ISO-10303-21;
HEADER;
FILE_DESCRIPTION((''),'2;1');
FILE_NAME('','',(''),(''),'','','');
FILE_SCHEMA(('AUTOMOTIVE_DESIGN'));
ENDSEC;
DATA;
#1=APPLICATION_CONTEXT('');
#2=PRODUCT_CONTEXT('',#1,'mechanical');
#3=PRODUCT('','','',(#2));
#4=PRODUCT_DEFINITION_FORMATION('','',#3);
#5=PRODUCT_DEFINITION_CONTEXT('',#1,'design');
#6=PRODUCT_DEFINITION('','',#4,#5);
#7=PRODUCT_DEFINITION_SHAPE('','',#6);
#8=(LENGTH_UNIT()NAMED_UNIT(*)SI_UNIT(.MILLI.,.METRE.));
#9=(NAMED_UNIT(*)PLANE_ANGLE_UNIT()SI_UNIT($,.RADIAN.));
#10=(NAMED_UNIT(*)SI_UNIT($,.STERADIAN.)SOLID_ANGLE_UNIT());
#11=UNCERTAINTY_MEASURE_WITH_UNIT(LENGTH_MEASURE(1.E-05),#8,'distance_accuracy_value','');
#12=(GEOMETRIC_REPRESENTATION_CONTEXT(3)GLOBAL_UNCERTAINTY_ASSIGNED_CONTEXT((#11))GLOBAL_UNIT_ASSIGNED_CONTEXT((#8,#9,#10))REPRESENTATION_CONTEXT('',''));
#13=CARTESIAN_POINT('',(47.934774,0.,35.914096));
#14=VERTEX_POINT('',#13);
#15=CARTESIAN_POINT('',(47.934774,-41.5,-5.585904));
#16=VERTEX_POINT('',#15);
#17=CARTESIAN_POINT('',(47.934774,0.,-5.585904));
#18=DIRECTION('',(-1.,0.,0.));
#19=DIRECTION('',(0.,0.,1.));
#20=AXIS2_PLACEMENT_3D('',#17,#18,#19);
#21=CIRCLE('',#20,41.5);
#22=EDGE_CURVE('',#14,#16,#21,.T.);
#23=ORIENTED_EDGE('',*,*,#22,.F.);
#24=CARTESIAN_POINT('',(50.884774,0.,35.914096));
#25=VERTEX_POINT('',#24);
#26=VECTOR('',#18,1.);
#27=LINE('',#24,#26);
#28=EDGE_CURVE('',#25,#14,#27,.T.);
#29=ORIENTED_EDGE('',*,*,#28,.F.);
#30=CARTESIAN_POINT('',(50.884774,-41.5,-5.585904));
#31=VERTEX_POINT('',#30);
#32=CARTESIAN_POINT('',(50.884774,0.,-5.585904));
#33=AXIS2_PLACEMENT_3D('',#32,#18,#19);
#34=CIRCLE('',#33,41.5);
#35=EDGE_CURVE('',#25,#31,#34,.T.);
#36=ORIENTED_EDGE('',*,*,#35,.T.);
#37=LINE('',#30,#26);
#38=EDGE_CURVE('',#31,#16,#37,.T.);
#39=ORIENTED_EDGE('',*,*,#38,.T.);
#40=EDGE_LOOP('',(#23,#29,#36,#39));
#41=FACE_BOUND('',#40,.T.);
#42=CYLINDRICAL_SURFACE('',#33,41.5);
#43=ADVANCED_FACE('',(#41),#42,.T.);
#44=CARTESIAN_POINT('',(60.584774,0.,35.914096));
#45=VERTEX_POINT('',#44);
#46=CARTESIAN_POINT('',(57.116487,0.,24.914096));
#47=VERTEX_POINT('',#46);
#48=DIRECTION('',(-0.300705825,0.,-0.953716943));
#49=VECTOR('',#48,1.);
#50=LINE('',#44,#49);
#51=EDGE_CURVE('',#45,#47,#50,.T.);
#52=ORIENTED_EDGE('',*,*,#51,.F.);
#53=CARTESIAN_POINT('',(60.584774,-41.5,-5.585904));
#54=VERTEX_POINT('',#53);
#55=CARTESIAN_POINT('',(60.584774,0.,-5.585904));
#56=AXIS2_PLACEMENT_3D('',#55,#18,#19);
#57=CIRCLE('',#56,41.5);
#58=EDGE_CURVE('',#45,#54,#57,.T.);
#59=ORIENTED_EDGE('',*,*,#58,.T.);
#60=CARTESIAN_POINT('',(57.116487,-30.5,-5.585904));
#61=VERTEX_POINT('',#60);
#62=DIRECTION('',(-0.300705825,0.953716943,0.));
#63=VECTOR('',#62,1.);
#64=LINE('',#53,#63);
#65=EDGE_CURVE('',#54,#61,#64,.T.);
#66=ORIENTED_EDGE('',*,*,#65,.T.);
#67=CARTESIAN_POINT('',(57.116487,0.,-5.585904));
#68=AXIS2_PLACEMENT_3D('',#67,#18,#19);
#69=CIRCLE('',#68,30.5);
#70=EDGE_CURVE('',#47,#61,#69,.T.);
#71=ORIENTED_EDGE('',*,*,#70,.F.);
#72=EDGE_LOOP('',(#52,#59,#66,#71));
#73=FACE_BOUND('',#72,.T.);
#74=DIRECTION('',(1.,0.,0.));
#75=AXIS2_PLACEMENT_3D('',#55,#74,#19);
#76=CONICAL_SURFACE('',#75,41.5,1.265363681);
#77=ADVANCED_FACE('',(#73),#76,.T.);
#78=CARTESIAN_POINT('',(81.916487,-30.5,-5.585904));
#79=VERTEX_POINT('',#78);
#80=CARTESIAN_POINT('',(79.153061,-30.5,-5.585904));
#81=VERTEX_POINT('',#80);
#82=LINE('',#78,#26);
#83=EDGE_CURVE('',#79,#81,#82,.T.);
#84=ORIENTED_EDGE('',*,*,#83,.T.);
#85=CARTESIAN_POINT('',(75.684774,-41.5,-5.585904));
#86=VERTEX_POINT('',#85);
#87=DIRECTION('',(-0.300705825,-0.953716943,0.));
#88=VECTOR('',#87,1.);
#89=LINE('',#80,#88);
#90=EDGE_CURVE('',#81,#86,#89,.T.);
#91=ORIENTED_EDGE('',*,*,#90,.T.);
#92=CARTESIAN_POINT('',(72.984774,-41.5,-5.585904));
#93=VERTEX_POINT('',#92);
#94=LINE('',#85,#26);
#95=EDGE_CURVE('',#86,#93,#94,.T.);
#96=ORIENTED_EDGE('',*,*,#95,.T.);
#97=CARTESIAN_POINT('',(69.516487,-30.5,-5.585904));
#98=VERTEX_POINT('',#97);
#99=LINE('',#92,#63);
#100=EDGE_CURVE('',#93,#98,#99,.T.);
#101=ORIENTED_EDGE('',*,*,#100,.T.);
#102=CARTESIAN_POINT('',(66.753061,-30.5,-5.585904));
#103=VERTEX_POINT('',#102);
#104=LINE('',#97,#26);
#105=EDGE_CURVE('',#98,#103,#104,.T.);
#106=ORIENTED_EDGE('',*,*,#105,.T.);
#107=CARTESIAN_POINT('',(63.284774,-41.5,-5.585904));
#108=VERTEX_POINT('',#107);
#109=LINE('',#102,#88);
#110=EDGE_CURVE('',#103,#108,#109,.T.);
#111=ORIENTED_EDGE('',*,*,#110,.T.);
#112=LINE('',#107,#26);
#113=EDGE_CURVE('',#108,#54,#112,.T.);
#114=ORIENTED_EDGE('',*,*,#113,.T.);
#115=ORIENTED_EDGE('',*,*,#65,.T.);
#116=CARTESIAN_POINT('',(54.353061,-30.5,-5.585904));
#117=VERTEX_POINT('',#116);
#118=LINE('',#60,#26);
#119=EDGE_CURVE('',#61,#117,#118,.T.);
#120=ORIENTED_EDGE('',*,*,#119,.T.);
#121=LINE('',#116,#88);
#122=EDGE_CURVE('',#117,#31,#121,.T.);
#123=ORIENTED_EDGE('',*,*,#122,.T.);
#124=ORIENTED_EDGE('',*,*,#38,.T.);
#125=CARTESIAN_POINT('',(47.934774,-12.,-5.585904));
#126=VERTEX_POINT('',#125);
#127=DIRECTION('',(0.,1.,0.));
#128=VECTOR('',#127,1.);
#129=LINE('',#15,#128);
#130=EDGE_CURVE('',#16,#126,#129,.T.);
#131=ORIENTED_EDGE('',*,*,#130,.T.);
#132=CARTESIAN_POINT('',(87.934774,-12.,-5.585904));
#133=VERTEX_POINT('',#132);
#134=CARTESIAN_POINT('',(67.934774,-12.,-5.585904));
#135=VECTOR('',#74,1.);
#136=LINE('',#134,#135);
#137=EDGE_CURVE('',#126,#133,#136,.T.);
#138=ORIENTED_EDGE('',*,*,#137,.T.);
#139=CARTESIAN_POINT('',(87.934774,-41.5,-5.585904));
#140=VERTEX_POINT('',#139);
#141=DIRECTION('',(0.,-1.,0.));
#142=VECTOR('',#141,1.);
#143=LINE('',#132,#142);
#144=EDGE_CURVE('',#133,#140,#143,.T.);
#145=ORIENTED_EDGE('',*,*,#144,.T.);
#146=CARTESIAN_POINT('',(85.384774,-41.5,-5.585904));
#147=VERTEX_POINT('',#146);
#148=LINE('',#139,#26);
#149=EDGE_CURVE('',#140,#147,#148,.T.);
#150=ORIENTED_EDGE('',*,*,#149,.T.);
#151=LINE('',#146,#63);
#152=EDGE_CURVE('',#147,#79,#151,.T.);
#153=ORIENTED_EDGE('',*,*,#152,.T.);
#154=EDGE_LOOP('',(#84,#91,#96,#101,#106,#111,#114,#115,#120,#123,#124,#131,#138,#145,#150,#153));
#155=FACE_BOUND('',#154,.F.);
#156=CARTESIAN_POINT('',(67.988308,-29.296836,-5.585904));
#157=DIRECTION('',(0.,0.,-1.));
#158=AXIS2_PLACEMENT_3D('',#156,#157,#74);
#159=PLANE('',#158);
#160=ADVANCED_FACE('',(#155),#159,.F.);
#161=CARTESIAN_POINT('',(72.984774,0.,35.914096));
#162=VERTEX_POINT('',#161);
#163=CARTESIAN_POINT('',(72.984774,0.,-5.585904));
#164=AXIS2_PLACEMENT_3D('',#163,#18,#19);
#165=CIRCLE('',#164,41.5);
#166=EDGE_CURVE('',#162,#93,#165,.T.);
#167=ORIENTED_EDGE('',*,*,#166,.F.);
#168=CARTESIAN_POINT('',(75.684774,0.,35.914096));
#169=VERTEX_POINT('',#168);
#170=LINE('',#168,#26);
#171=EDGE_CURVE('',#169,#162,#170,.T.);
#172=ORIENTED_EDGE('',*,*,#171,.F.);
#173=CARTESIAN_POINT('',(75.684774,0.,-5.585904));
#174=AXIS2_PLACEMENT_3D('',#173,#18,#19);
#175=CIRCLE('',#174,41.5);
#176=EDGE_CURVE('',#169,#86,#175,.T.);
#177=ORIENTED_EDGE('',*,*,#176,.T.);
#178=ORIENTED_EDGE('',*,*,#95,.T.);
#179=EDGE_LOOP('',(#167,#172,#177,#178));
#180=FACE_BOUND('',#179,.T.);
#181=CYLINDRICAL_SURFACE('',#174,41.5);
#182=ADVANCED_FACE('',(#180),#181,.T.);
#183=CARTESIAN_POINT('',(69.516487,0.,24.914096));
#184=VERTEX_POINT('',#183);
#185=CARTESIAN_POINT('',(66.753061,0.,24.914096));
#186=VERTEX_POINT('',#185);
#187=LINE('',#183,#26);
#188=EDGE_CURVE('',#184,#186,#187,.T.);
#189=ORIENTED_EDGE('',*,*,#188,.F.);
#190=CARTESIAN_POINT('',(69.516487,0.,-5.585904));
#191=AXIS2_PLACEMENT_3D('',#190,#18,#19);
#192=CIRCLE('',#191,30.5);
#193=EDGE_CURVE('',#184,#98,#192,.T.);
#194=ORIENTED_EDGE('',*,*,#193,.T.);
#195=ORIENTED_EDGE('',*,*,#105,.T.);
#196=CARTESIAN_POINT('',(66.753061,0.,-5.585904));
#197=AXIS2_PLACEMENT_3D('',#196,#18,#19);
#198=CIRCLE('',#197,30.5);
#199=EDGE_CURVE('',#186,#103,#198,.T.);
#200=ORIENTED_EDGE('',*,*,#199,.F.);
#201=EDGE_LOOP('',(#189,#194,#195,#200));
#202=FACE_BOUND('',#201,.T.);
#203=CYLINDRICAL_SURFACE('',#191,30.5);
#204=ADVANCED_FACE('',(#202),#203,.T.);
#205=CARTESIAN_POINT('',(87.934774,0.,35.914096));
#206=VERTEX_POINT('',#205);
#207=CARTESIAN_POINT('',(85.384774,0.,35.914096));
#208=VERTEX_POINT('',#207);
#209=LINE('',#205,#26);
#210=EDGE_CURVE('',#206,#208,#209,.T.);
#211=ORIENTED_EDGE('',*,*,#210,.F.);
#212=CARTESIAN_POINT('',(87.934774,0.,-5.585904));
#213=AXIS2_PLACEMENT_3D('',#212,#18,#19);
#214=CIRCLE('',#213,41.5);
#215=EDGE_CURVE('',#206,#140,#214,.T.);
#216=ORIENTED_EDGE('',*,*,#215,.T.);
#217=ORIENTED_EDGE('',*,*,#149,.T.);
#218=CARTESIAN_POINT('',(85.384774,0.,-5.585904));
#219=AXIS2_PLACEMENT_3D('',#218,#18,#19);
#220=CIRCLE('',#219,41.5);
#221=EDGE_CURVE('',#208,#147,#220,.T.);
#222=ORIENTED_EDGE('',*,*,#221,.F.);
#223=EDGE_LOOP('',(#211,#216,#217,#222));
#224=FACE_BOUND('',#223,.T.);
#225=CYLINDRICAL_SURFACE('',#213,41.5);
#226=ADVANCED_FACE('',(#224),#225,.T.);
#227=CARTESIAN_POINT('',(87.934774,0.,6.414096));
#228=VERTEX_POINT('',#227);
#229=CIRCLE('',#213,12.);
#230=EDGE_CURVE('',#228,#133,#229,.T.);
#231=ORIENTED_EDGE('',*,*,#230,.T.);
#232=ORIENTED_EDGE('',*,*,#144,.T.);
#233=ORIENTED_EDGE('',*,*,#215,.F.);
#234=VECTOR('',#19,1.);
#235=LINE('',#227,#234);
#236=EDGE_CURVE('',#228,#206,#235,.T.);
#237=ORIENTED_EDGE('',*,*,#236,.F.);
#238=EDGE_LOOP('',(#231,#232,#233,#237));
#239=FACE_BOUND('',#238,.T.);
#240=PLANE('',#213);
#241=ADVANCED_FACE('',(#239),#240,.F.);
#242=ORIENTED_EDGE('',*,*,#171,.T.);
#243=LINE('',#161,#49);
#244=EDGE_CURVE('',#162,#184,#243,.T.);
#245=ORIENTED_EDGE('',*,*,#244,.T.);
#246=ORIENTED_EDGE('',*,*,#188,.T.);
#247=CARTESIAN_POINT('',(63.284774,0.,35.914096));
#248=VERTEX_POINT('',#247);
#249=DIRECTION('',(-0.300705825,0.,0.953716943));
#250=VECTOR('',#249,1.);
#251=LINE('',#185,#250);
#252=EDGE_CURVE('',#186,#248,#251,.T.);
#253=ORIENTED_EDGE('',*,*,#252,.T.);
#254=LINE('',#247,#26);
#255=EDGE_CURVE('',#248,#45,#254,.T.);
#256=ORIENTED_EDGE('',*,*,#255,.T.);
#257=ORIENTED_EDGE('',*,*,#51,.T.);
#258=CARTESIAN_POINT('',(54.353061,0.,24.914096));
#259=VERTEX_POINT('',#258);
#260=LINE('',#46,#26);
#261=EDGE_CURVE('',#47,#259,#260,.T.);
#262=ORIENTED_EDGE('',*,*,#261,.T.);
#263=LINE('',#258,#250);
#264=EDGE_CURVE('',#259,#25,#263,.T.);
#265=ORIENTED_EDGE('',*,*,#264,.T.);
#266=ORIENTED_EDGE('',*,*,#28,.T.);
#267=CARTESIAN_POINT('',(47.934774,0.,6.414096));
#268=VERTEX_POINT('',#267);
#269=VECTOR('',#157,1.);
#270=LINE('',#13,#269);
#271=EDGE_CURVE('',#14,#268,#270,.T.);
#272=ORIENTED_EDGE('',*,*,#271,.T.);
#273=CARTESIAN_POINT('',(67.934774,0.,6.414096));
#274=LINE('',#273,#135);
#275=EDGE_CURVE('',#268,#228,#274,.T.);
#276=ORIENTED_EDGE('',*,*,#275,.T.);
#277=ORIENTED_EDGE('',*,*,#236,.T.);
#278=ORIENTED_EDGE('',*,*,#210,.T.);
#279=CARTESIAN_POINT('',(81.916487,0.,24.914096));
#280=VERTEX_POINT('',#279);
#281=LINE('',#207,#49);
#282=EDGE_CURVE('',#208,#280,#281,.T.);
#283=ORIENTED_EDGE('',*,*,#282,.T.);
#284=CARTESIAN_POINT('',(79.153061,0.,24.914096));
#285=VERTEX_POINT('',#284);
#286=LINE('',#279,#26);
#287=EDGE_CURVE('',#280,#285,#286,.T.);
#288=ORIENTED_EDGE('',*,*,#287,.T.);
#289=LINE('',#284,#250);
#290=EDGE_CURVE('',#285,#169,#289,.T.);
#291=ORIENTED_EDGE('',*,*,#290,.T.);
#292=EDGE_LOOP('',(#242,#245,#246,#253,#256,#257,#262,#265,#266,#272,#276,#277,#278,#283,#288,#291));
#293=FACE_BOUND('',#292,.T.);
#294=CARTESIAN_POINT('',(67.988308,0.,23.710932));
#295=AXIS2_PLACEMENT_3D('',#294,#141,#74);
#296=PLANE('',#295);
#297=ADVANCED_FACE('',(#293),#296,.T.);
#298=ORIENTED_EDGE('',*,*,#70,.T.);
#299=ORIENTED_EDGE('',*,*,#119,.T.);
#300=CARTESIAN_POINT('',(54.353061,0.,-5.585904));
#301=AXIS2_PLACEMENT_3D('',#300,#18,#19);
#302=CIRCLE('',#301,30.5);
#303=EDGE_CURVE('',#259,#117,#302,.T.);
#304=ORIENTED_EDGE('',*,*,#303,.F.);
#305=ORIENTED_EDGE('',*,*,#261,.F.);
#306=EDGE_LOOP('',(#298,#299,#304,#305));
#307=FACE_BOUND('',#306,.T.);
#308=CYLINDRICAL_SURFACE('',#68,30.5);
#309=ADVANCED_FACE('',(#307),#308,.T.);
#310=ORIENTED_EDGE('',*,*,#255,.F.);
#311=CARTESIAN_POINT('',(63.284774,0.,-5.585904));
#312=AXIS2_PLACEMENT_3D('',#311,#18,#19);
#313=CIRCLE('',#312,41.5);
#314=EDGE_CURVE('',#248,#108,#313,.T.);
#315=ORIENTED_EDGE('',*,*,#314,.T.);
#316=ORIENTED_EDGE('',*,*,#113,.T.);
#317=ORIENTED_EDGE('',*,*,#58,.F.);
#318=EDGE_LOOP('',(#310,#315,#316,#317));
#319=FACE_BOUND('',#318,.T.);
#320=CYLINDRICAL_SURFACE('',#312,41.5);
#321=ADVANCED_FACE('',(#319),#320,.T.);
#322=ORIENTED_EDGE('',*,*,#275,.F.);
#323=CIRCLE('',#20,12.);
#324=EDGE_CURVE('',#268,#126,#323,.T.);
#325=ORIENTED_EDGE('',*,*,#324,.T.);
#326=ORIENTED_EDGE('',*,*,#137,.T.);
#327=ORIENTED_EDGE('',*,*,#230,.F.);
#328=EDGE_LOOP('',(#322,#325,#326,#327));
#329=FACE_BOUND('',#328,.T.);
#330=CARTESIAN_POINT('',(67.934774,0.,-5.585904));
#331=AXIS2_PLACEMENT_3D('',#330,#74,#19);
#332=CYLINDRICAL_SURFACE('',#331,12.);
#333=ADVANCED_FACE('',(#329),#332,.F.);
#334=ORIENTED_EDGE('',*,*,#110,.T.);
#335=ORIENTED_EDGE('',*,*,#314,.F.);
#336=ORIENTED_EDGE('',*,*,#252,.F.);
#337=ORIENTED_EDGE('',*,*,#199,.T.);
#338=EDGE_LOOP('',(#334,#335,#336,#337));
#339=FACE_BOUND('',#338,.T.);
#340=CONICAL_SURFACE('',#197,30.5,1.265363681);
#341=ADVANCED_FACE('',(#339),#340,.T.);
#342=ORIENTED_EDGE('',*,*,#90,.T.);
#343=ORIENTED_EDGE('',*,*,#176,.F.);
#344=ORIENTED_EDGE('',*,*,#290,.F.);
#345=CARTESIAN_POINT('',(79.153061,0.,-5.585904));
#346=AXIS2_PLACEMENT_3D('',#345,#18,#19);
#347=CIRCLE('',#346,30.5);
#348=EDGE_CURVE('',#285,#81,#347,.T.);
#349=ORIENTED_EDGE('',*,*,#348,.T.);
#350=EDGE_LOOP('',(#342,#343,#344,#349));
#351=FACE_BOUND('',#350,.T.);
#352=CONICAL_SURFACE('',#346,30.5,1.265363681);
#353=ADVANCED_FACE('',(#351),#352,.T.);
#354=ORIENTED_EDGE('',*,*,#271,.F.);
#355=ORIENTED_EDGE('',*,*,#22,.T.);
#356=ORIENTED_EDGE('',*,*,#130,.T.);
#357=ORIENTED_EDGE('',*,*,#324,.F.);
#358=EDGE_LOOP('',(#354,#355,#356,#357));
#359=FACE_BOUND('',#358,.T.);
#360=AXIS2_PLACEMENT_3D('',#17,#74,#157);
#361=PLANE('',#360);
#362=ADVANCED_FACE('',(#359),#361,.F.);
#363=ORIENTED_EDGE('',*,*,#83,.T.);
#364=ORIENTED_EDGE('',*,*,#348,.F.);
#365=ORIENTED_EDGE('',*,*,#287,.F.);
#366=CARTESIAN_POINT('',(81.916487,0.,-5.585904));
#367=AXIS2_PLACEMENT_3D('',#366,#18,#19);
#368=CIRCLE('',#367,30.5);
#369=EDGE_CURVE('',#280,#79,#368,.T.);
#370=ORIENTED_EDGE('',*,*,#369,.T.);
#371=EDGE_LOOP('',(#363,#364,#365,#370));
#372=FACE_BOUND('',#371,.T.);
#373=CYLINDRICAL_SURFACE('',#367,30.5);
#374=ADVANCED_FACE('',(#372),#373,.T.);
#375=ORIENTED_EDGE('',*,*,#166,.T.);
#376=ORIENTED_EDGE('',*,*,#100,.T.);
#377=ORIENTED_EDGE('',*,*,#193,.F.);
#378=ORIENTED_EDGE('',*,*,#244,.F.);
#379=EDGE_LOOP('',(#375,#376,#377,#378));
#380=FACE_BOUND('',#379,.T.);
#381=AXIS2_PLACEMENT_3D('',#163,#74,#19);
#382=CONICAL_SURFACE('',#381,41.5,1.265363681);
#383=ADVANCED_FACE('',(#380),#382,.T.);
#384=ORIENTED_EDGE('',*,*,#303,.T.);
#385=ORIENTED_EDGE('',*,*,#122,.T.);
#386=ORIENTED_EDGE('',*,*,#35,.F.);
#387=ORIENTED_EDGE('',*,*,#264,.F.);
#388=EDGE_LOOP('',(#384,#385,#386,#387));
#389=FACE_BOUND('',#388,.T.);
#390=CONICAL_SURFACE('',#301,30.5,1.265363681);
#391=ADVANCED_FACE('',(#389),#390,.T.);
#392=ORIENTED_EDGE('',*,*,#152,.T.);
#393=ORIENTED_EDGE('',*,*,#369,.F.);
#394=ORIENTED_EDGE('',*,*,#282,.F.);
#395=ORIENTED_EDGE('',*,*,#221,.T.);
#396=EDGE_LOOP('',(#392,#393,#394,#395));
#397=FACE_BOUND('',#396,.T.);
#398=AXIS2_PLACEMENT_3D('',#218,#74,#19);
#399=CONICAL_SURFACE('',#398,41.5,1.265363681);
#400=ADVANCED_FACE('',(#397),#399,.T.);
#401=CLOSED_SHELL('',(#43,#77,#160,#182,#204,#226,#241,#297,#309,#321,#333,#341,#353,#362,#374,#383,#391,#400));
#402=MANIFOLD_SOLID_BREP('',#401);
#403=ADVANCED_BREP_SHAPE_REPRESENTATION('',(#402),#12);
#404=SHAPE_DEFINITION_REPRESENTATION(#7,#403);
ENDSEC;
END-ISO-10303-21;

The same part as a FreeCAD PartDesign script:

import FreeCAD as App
import Part
import Sketcher
from FreeCAD import Vector
Q = App.Units.Quantity


def add_polygon(sketch, points):
    """Adds a closed chain of lines whose ends are joined by coincident constraints."""
    first, n = sketch.GeometryCount, len(points)
    for a, b in zip(points, points[1:] + points[:1]):
        sketch.addGeometry(Part.LineSegment(App.Vector(*a, 0), App.Vector(*b, 0)), False)
    for i in range(n):
        sketch.addConstraint(Sketcher.Constraint("Coincident", first + i, 2, first + (i + 1) % n, 1))

doc = App.newDocument("Part")
body = doc.addObject("PartDesign::Body", "Body")

sketch1 = doc.addObject("Sketcher::SketchObject", "Sketch")
body.addObject(sketch1)
sketch1.AttachmentSupport = (doc.XZ_Plane, [""])
sketch1.MapMode = "FlatFace"
add_polygon(sketch1, [(63.3, 35.9), (60.6, 35.9), (57.1, 24.9), (54.4, 24.9), (50.9, 35.9), (47.9, 35.9), (47.9, 6.4), (87.9, 6.4), (87.9, 35.9), (85.4, 35.9), (81.9, 24.9), (79.2, 24.9), (75.7, 35.9), (73, 35.9), (69.5, 24.9), (66.8, 24.9)])
sketch1.addGeometry(Part.LineSegment(Vector(87.9, -5.6, 0), Vector(47.9, -5.6, 0)), True)
sketch1.addConstraint([
    Sketcher.Constraint("Horizontal", 0),
    Sketcher.Constraint("Horizontal", 2),
    Sketcher.Constraint("Horizontal", 4),
    Sketcher.Constraint("Vertical", 5),
    Sketcher.Constraint("Horizontal", 6),
    Sketcher.Constraint("Vertical", 7),
    Sketcher.Constraint("Horizontal", 8),
    Sketcher.Constraint("Horizontal", 10),
    Sketcher.Constraint("Horizontal", 12),
    Sketcher.Constraint("Horizontal", 14),
    Sketcher.Constraint("Horizontal", 16),
    Sketcher.Constraint("Parallel", 1, 9),
    Sketcher.Constraint("Parallel", 3, 11),
    Sketcher.Constraint("Parallel", 9, 13),
    Sketcher.Constraint("Parallel", 11, 15),
    Sketcher.Constraint("Horizontal", 0, 2, 3, 2),
    Sketcher.Constraint("Horizontal", 4, 2, 7, 2),
    Sketcher.Constraint("Horizontal", 2, 2, 9, 2),
    Sketcher.Constraint("Horizontal", 8, 2, 11, 2),
    Sketcher.Constraint("Horizontal", 10, 2, 13, 2),
    Sketcher.Constraint("Vertical", 7, 2, 16, 1),
    Sketcher.Constraint("Vertical", 5, 2, 16, 2),
    Sketcher.Constraint("Equal", 2, 10),
    Sketcher.Constraint("Equal", 0, 12),
    Sketcher.Constraint("Equal", 10, 14),
    Sketcher.Constraint("Equal", 1, 3),
    Sketcher.Constraint("DistanceX", 6, 1, 6, 2, 40.0),
    Sketcher.Constraint("DistanceX", 0, 2, 0, 1, 2.7),
    Sketcher.Constraint("DistanceY", 5, 2, 5, 1, 29.5),
    Sketcher.Constraint("Angle", 1, Q("-107.500002 deg")),
    Sketcher.Constraint("DistanceY", 1, 2, 0, 2, 11.0),
    Sketcher.Constraint("DistanceY", 16, 1, 6, 2, 12.0),
    Sketcher.Constraint("DistanceX", 4, 2, 4, 1, 2.95),
    Sketcher.Constraint("DistanceX", 8, 2, 8, 1, 2.55),
    Sketcher.Constraint("DistanceX", -1, 1, 2, 2, 54.353061),
    Sketcher.Constraint("DistanceY", -1, 1, 0, 2, 35.914096),
])
revolution = doc.addObject("PartDesign::Revolution", "Revolution")
body.addObject(revolution)
revolution.Profile = sketch1
revolution.ReferenceAxis = (sketch1, ["Axis0"])
revolution.Angle = 270

doc.recompute()
